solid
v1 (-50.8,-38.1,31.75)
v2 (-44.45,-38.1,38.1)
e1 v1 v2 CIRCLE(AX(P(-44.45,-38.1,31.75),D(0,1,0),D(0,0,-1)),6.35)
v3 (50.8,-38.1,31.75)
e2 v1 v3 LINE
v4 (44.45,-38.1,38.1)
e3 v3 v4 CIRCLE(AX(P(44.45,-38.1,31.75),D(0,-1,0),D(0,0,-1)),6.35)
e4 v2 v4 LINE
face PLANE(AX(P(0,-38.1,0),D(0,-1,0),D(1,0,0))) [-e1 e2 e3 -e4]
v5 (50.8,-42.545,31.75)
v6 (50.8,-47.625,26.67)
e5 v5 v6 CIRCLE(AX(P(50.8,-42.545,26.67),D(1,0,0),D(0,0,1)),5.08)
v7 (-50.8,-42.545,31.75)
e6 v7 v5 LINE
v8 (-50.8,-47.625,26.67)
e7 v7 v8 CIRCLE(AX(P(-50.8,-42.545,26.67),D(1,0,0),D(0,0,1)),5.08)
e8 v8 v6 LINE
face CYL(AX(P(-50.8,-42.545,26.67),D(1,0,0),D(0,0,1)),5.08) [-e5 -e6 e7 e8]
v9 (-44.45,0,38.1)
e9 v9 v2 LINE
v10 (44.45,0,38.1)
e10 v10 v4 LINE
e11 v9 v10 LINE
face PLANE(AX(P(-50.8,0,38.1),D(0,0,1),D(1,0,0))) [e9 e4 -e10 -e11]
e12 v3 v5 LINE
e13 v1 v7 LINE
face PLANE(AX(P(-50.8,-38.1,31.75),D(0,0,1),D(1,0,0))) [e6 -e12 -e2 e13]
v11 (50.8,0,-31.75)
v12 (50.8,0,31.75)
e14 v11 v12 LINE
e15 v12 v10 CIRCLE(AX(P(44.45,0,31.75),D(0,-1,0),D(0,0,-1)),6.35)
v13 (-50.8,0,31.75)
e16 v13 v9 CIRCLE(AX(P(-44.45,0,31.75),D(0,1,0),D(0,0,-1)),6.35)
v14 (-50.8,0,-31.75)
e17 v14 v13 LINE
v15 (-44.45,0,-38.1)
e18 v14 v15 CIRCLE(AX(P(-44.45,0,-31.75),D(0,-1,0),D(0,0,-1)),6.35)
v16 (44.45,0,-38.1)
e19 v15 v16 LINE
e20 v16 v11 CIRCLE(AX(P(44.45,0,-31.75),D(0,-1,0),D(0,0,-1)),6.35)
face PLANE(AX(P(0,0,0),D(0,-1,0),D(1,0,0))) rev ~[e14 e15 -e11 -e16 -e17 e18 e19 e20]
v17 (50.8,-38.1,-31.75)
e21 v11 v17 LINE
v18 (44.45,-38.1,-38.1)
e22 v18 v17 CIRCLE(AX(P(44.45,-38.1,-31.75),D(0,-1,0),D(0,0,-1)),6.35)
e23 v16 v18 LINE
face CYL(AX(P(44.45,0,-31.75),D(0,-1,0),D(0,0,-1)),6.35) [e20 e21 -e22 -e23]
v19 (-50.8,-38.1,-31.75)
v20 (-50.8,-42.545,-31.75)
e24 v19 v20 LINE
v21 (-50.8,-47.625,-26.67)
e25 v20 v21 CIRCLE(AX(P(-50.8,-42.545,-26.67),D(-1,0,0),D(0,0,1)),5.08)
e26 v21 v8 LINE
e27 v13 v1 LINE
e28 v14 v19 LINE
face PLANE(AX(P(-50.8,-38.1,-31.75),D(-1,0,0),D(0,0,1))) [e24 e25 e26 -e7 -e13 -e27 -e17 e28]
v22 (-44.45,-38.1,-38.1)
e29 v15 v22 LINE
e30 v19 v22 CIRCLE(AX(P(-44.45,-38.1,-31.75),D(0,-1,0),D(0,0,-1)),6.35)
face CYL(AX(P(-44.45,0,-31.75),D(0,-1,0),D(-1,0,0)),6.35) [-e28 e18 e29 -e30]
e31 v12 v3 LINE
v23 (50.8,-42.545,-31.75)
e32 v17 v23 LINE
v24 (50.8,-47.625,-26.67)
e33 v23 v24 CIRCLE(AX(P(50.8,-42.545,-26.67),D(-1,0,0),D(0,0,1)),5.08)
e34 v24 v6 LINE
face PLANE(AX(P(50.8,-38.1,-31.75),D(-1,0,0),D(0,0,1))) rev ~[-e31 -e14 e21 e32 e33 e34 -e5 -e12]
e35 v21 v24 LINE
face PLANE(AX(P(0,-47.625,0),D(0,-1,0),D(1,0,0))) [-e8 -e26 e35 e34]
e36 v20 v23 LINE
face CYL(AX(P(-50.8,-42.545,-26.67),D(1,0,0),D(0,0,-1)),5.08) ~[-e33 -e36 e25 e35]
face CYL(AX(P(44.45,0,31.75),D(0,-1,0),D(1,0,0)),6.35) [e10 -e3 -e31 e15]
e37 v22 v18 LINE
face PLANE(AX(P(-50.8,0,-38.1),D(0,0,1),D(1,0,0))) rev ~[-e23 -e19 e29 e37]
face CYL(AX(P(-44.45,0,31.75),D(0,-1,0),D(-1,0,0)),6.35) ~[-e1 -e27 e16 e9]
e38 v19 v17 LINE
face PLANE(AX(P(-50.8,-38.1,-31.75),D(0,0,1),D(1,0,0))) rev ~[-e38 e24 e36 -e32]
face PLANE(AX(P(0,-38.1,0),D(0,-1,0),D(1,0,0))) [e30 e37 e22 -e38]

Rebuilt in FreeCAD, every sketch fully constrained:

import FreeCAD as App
import Part
import Sketcher

V = App.Vector
Q = App.Units.Quantity


def edges_at(feature, points):
    """Names of the edges that pass closest to the given points."""
    edges = feature.Shape.Edges
    near = lambda p: min(range(len(edges)), key=lambda i: edges[i].distToShape(Part.Vertex(*p))[0])
    return sorted({f"Edge{near(p) + 1}" for p in points})


def add_polygon(sketch, points):
    """Adds a closed chain of lines whose ends are joined by coincident constraints."""
    first, n = sketch.GeometryCount, len(points)
    for a, b in zip(points, points[1:] + points[:1]):
        sketch.addGeometry(Part.LineSegment(App.Vector(*a, 0), App.Vector(*b, 0)), False)
    for i in range(n):
        sketch.addConstraint(Sketcher.Constraint("Coincident", first + i, 2, first + (i + 1) % n, 1))

doc = App.newDocument("Part")
params = doc.addObject("Spreadsheet::Sheet", "Params")
for row, (alias, value) in enumerate([
    ("sketch1_width", "4 in"),
    ("sketch1_height", "3 in"),
    ("pad1_length", "1.5 in"),
    ("fillet_radius", "0.25 in"),
    ("sketch2_width", "4 in"),
    ("sketch2_height", "2.5 in"),
    ("pad2_length", "0.375 in"),
    ("fillet2_radius", "0.2 in"),
], start=1):
    params.set(f"A{row}", alias)
    params.set(f"B{row}", "=" + value)
    params.setAlias(f"B{row}", alias)

body = doc.addObject("PartDesign::Body", "Body")

# Sketch on XZ plane
sketch1 = body.newObject("Sketcher::SketchObject", "Sketch")
sketch1.AttachmentSupport = (doc.getObject("XZ_Plane"), [""])
sketch1.MapMode = "FlatFace"
add_polygon(sketch1, [(-51, 38), (-51, -38), (51, -38), (51, 38)])  # lines 0-3
sketch1.addConstraint(Sketcher.Constraint("Vertical", 0))
sketch1.addConstraint(Sketcher.Constraint("Horizontal", 1))
sketch1.addConstraint(Sketcher.Constraint("Vertical", 2))
sketch1.addConstraint(Sketcher.Constraint("Horizontal", 3))
sketch1.addConstraint(Sketcher.Constraint("Symmetric", 0, 2, 2, 2, -1, 1))
sketch1.addConstraint(Sketcher.Constraint("DistanceX", 1, 1, 1, 2, Q("4 in")))
sketch1.addConstraint(Sketcher.Constraint("DistanceY", 0, 2, 0, 1, Q("3 in")))
sketch1.setExpression("Constraints[9]", "Params.sketch1_width")
sketch1.setExpression("Constraints[10]", "Params.sketch1_height")
pad1 = body.newObject("PartDesign::Pad", "Pad")
pad1.Profile = sketch1
pad1.setExpression("Length", "Params.pad1_length")
doc.recompute()

fillet = body.newObject("PartDesign::Fillet", "Fillet")
fillet.Base = (pad1, edges_at(pad1, [
    (50.8, -19.05, -38.1),
    (50.8, -19.05, 38.1),
    (-50.8, -19.05, 38.1),
    (-50.8, -19.05, -38.1),
]))
fillet.setExpression("Radius", "Params.fillet_radius")

# Sketch on XZ plane
sketch2 = body.newObject("Sketcher::SketchObject", "Sketch001")
sketch2.AttachmentSupport = (doc.getObject("XZ_Plane"), [""])
sketch2.MapMode = "FlatFace"
sketch2.AttachmentOffset = App.Placement(V(0, 0, 1.5 * 25.4), App.Rotation())
add_polygon(sketch2, [(-51, 32), (-51, -32), (51, -32), (51, 32)])  # lines 0-3
sketch2.addConstraint(Sketcher.Constraint("Vertical", 0))
sketch2.addConstraint(Sketcher.Constraint("Horizontal", 1))
sketch2.addConstraint(Sketcher.Constraint("Vertical", 2))
sketch2.addConstraint(Sketcher.Constraint("Horizontal", 3))
sketch2.addConstraint(Sketcher.Constraint("Symmetric", 0, 2, 2, 2, -1, 1))
sketch2.addConstraint(Sketcher.Constraint("DistanceX", 1, 1, 1, 2, Q("4 in")))
sketch2.addConstraint(Sketcher.Constraint("DistanceY", 0, 2, 0, 1, Q("2.5 in")))
sketch2.setExpression("Constraints[9]", "Params.sketch2_width")
sketch2.setExpression("Constraints[10]", "Params.sketch2_height")
pad2 = body.newObject("PartDesign::Pad", "Pad001")
pad2.Profile = sketch2
pad2.setExpression("Length", "Params.pad2_length")
doc.recompute()

fillet2 = body.newObject("PartDesign::Fillet", "Fillet001")
fillet2.Base = (pad2, edges_at(pad2, [(0, -47.625, 31.75), (0, -47.625, -31.75)]))
fillet2.setExpression("Radius", "Params.fillet2_radius")

doc.recompute()
